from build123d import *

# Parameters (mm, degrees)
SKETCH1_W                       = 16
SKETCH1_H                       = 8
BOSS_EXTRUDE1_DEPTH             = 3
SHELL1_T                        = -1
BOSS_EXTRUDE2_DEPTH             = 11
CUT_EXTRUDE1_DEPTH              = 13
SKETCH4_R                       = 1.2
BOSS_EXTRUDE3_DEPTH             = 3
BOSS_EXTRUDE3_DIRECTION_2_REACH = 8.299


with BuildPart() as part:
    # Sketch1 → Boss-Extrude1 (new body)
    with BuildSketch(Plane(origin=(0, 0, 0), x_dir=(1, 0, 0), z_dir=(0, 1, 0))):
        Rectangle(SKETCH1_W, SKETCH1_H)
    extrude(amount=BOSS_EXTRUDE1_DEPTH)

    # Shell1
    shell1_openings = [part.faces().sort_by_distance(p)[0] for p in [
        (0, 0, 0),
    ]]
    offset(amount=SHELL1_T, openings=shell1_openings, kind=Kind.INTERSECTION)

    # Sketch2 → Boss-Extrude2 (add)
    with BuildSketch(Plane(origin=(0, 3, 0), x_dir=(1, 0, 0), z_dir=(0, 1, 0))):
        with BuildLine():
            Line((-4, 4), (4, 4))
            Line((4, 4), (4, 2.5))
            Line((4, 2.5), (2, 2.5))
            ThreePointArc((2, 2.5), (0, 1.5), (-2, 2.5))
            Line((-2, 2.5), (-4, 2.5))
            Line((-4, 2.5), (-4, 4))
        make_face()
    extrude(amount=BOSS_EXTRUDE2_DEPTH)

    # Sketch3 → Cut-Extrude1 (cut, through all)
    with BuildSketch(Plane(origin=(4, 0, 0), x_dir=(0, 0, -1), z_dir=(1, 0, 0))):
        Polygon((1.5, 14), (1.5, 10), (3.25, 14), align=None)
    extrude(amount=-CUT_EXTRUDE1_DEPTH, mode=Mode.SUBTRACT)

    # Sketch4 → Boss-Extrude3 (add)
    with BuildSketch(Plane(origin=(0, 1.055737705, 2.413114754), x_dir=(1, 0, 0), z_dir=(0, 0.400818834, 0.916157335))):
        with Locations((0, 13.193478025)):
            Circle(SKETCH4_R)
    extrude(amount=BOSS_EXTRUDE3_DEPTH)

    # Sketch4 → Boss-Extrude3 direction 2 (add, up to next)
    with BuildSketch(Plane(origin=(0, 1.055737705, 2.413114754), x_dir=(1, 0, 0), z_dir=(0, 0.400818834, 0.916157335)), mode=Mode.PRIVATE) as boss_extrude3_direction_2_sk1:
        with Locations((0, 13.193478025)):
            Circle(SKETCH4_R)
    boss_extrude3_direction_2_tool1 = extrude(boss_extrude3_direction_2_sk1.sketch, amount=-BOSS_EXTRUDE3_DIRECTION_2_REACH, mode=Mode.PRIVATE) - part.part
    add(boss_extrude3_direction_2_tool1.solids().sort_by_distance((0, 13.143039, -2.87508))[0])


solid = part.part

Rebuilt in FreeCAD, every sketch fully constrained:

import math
import FreeCAD as App
import Part
import Sketcher
from FreeCAD import Vector


def faces_at(feature, points):
    """Names of the faces that lie closest to the given points."""
    faces = feature.Shape.Faces
    near = lambda p: min(range(len(faces)), key=lambda i: faces[i].distToShape(Part.Vertex(*p))[0])
    return sorted({f"Face{near(p) + 1}" for p in points})


def add_polygon(sketch, points):
    """Adds a closed chain of lines whose ends are joined by coincident constraints."""
    first, n = sketch.GeometryCount, len(points)
    for a, b in zip(points, points[1:] + points[:1]):
        sketch.addGeometry(Part.LineSegment(App.Vector(*a, 0), App.Vector(*b, 0)), False)
    for i in range(n):
        sketch.addConstraint(Sketcher.Constraint("Coincident", first + i, 2, first + (i + 1) % n, 1))

doc = App.newDocument("Part")
body = doc.addObject("PartDesign::Body", "Body")

# Sketch on XZ plane
sketch1 = doc.addObject("Sketcher::SketchObject", "Sketch")
body.addObject(sketch1)
sketch1.AttachmentSupport = (doc.XZ_Plane, [""])
sketch1.MapMode = "FlatFace"
add_polygon(sketch1, [(-8, -4), (-8, 4), (8, 4), (8, -4)])  # lines 0-3
sketch1.addConstraint(Sketcher.Constraint("Vertical", 0))
sketch1.addConstraint(Sketcher.Constraint("Horizontal", 1))
sketch1.addConstraint(Sketcher.Constraint("Vertical", 2))
sketch1.addConstraint(Sketcher.Constraint("Horizontal", 3))
sketch1.addConstraint(Sketcher.Constraint("Symmetric", 0, 2, 2, 2, -1, 1))
sketch1.addConstraint(Sketcher.Constraint("DistanceX", 1, 1, 1, 2, 16.0))
sketch1.addConstraint(Sketcher.Constraint("DistanceY", 0, 1, 0, 2, 8.0))
pad1 = doc.addObject("PartDesign::Pad", "Pad")
body.addObject(pad1)
pad1.Profile = sketch1
pad1.Length = 3
pad1.Reversed = True
doc.recompute()

thickness = doc.addObject("PartDesign::Thickness", "Thickness")
body.addObject(thickness)
thickness.Base = (pad1, faces_at(pad1, [(0, 0, 0)]))
thickness.Value = 1
thickness.Reversed = True
thickness.Join = "Intersection"

# Sketch on XZ plane
sketch2 = doc.addObject("Sketcher::SketchObject", "Sketch001")
body.addObject(sketch2)
sketch2.AttachmentSupport = (doc.XZ_Plane, [""])
sketch2.MapMode = "FlatFace"
sketch2.AttachmentOffset = App.Placement(Vector(0, 0, -3), App.Rotation())
sketch2.addGeometry(Part.LineSegment(Vector(4, -4, 0), Vector(-4, -4, 0)), False)
sketch2.addGeometry(Part.LineSegment(Vector(-4, -4, 0), Vector(-4, -2.5, 0)), False)
sketch2.addGeometry(Part.LineSegment(Vector(-4, -2.5, 0), Vector(-2, -2.5, 0)), False)
sketch2.addGeometry(Part.ArcOfCircle(Part.Circle(Vector(0, -4, 0), Vector(0, 0, 1), 2.5), math.radians(36.869898), math.radians(143.130102)), False)
sketch2.addGeometry(Part.LineSegment(Vector(2, -2.5, 0), Vector(4, -2.5, 0)), False)
sketch2.addGeometry(Part.LineSegment(Vector(4, -2.5, 0), Vector(4, -4, 0)), False)
sketch2.addConstraint(Sketcher.Constraint("Coincident", 0, 2, 1, 1))
sketch2.addConstraint(Sketcher.Constraint("Coincident", 1, 2, 2, 1))
sketch2.addConstraint(Sketcher.Constraint("Coincident", 2, 2, 3, 2))
sketch2.addConstraint(Sketcher.Constraint("Coincident", 3, 1, 4, 1))
sketch2.addConstraint(Sketcher.Constraint("Coincident", 4, 2, 5, 1))
sketch2.addConstraint(Sketcher.Constraint("Coincident", 5, 2, 0, 1))
sketch2.addConstraint(Sketcher.Constraint("Horizontal", 0))
sketch2.addConstraint(Sketcher.Constraint("Vertical", 1))
sketch2.addConstraint(Sketcher.Constraint("Horizontal", 2))
sketch2.addConstraint(Sketcher.Constraint("Horizontal", 4))
sketch2.addConstraint(Sketcher.Constraint("Vertical", 5))
sketch2.addConstraint(Sketcher.Constraint("Symmetric", 2, 2, 3, 1, -2))
sketch2.addConstraint(Sketcher.Constraint("Horizontal", 3, 3, 0, 2))
sketch2.addConstraint(Sketcher.Constraint("Equal", 2, 4))
sketch2.addConstraint(Sketcher.Constraint("Radius", 3, 2.5))
sketch2.addConstraint(Sketcher.Constraint("DistanceX", 0, 2, 0, 1, 8.0))
sketch2.addConstraint(Sketcher.Constraint("DistanceX", 2, 1, 2, 2, 2.0))
sketch2.addConstraint(Sketcher.Constraint("DistanceY", 3, 3, -1, 1, 4.0))
pad2 = doc.addObject("PartDesign::Pad", "Pad001")
body.addObject(pad2)
pad2.Profile = sketch2
pad2.Length = 11
pad2.Reversed = True

# Sketch on YZ plane
sketch3 = doc.addObject("Sketcher::SketchObject", "Sketch002")
body.addObject(sketch3)
sketch3.AttachmentSupport = (doc.YZ_Plane, [""])
sketch3.MapMode = "FlatFace"
sketch3.AttachmentOffset = App.Placement(Vector(0, 0, 4), App.Rotation())
add_polygon(sketch3, [(14, -1.5), (10, -1.5), (14, -3.25)])  # lines 0-2
sketch3.addConstraint(Sketcher.Constraint("Horizontal", 0))
sketch3.addConstraint(Sketcher.Constraint("Vertical", 2))
sketch3.addConstraint(Sketcher.Constraint("DistanceX", 0, 2, 0, 1, 4.0))
sketch3.addConstraint(Sketcher.Constraint("DistanceX", -1, 1, 0, 2, 10.0))
sketch3.addConstraint(Sketcher.Constraint("DistanceY", 2, 1, 2, 2, 1.75))
sketch3.addConstraint(Sketcher.Constraint("DistanceY", 0, 2, -1, 1, 1.5))
pocket1 = doc.addObject("PartDesign::Pocket", "Pocket")
body.addObject(pocket1)
pocket1.Profile = sketch3
pocket1.Type = "ThroughAll"

# Sketch on an angled plane
sketch4 = doc.addObject("Sketcher::SketchObject", "Sketch003")
body.addObject(sketch4)
sketch4.Placement = App.Placement(Vector(0, 1.055738, 2.413115), App.Rotation(Vector(1, 0, 0), Vector(0, 0.916157335, -0.400818834), Vector(0, 0.400818834, 0.916157335), "ZXY"))
sketch4.addGeometry(Part.Circle(Vector(0, 13.193478, 0), Vector(0, 0, 1), 1.2), False)
sketch4.addConstraint(Sketcher.Constraint("PointOnObject", 0, 3, -2))
sketch4.addConstraint(Sketcher.Constraint("Diameter", 0, 2.4))
sketch4.addConstraint(Sketcher.Constraint("DistanceY", -1, 1, 0, 3, 13.193478))
pad3 = doc.addObject("PartDesign::Pad", "Pad002")
body.addObject(pad3)
pad3.Profile = sketch4
pad3.Length = 3

# Sketch on an angled plane
sketch5 = doc.addObject("Sketcher::SketchObject", "Sketch004")
body.addObject(sketch5)
sketch5.Placement = App.Placement(Vector(0, 1.055738, 2.413115), App.Rotation(Vector(1, 0, 0), Vector(0, 0.916157335, -0.400818834), Vector(0, 0.400818834, 0.916157335), "ZXY"))
sketch5.addGeometry(Part.Circle(Vector(0, 13.193478, 0), Vector(0, 0, 1), 1.2), False)
sketch5.addConstraint(Sketcher.Constraint("PointOnObject", 0, 3, -2))
sketch5.addConstraint(Sketcher.Constraint("Diameter", 0, 2.4))
sketch5.addConstraint(Sketcher.Constraint("DistanceY", -1, 1, 0, 3, 13.193478))
pad4 = doc.addObject("PartDesign::Pad", "Pad003")
body.addObject(pad4)
pad4.Profile = sketch5
pad4.Type = "UpToFirst"
pad4.Reversed = True

doc.recompute()
